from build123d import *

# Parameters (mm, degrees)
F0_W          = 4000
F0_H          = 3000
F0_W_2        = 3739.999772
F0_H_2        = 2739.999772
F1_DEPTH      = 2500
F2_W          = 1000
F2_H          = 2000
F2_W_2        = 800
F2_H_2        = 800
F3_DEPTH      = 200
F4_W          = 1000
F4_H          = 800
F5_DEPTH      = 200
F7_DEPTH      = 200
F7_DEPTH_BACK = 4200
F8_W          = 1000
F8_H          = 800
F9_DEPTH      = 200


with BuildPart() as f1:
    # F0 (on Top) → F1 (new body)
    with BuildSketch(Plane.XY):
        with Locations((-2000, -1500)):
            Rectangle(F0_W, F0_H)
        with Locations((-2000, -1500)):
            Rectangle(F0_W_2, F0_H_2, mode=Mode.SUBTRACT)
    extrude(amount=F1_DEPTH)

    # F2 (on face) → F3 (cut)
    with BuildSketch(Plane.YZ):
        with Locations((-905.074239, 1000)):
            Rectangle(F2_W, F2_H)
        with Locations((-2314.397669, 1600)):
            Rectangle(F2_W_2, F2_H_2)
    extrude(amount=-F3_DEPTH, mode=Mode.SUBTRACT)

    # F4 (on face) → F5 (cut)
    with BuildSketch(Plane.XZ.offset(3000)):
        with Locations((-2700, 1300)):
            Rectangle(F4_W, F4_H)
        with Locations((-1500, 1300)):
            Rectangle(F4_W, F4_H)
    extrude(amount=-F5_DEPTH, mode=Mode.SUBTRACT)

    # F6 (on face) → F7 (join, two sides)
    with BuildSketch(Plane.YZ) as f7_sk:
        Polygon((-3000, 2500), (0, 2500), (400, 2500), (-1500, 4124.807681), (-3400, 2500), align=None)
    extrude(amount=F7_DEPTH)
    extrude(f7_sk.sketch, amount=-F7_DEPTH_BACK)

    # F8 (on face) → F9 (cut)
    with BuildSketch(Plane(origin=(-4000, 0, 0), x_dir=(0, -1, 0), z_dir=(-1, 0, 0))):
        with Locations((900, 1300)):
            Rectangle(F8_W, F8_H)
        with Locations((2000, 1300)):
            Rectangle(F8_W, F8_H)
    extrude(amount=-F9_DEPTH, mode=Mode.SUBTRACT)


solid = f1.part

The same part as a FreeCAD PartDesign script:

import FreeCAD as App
import Part
import Sketcher

doc = App.newDocument("Part")
body = doc.addObject("PartDesign::Body", "Body")

sketch1 = body.newObject("Sketcher::SketchObject", "Sketch")
sketch1.AttachmentSupport = (doc.getObject("XY_Plane"), [""])
sketch1.MapMode = "FlatFace"
sketch1.addGeometry(Part.LineSegment(App.Vector(-4000, 0, 0), App.Vector(-4000, -3000, 0)), False)
sketch1.addGeometry(Part.LineSegment(App.Vector(-4000, -3000, 0), App.Vector(0, -3000, 0)), False)
sketch1.addGeometry(Part.LineSegment(App.Vector(0, -3000, 0), App.Vector(0, 0, 0)), False)
sketch1.addGeometry(Part.LineSegment(App.Vector(0, 0, 0), App.Vector(-4000, 0, 0)), False)
sketch1.addGeometry(Part.LineSegment(App.Vector(-130.000114, -2869.999886, 0), App.Vector(-3869.999886, -2869.999886, 0)), False)
sketch1.addGeometry(Part.LineSegment(App.Vector(-3869.999886, -2869.999886, 0), App.Vector(-3869.999886, -130.000114, 0)), False)
sketch1.addGeometry(Part.LineSegment(App.Vector(-3869.999886, -130.000114, 0), App.Vector(-130.000114, -130.000114, 0)), False)
sketch1.addGeometry(Part.LineSegment(App.Vector(-130.000114, -130.000114, 0), App.Vector(-130.000114, -2869.999886, 0)), False)
sketch1.addConstraint(Sketcher.Constraint("Coincident", 0, 2, 1, 1))
sketch1.addConstraint(Sketcher.Constraint("Coincident", 1, 2, 2, 1))
sketch1.addConstraint(Sketcher.Constraint("Coincident", 2, 2, 3, 1))
sketch1.addConstraint(Sketcher.Constraint("Coincident", 3, 2, 0, 1))
sketch1.addConstraint(Sketcher.Constraint("Coincident", 4, 2, 5, 1))
sketch1.addConstraint(Sketcher.Constraint("Coincident", 5, 2, 6, 1))
sketch1.addConstraint(Sketcher.Constraint("Coincident", 6, 2, 7, 1))
sketch1.addConstraint(Sketcher.Constraint("Coincident", 7, 2, 4, 1))
sketch1.addConstraint(Sketcher.Constraint("Vertical", 0))
sketch1.addConstraint(Sketcher.Constraint("Horizontal", 1))
sketch1.addConstraint(Sketcher.Constraint("Vertical", 2))
sketch1.addConstraint(Sketcher.Constraint("Horizontal", 3))
sketch1.addConstraint(Sketcher.Constraint("Horizontal", 4))
sketch1.addConstraint(Sketcher.Constraint("Vertical", 5))
sketch1.addConstraint(Sketcher.Constraint("Horizontal", 6))
sketch1.addConstraint(Sketcher.Constraint("Vertical", 7))
sketch1.addConstraint(Sketcher.Constraint("Coincident", 2, 2, -1, 1))
sketch1.addConstraint(Sketcher.Constraint("DistanceX", 1, 1, 1, 2, 4000.0))
sketch1.addConstraint(Sketcher.Constraint("DistanceY", 0, 2, 0, 1, 3000.0))
sketch1.addConstraint(Sketcher.Constraint("DistanceX", 4, 2, 4, 1, 3739.999772))
sketch1.addConstraint(Sketcher.Constraint("DistanceY", 5, 1, 5, 2, 2739.999772))
sketch1.addConstraint(Sketcher.Constraint("DistanceX", 4, 2, -1, 1, 3869.999886))
sketch1.addConstraint(Sketcher.Constraint("DistanceY", 4, 2, -1, 1, 2869.999886))
pad1 = body.newObject("PartDesign::Pad", "Pad")
pad1.Profile = sketch1
pad1.Length = 2500

sketch2 = body.newObject("Sketcher::SketchObject", "Sketch001")
sketch2.AttachmentSupport = (doc.getObject("YZ_Plane"), [""])
sketch2.MapMode = "FlatFace"
sketch2.addGeometry(Part.LineSegment(App.Vector(-1405, 2000, 0), App.Vector(-1405, 0, 0)), False)
sketch2.addGeometry(Part.LineSegment(App.Vector(-1405, 0, 0), App.Vector(-405, 0, 0)), False)
sketch2.addGeometry(Part.LineSegment(App.Vector(-405, 0, 0), App.Vector(-405, 2000, 0)), False)
sketch2.addGeometry(Part.LineSegment(App.Vector(-405, 2000, 0), App.Vector(-1405, 2000, 0)), False)
sketch2.addGeometry(Part.LineSegment(App.Vector(-2714, 2000, 0), App.Vector(-2714, 1200, 0)), False)
sketch2.addGeometry(Part.LineSegment(App.Vector(-2714, 1200, 0), App.Vector(-1914, 1200, 0)), False)
sketch2.addGeometry(Part.LineSegment(App.Vector(-1914, 1200, 0), App.Vector(-1914, 2000, 0)), False)
sketch2.addGeometry(Part.LineSegment(App.Vector(-1914, 2000, 0), App.Vector(-2714, 2000, 0)), False)
sketch2.addConstraint(Sketcher.Constraint("Coincident", 0, 2, 1, 1))
sketch2.addConstraint(Sketcher.Constraint("Coincident", 1, 2, 2, 1))
sketch2.addConstraint(Sketcher.Constraint("Coincident", 2, 2, 3, 1))
sketch2.addConstraint(Sketcher.Constraint("Coincident", 3, 2, 0, 1))
sketch2.addConstraint(Sketcher.Constraint("Coincident", 4, 2, 5, 1))
sketch2.addConstraint(Sketcher.Constraint("Coincident", 5, 2, 6, 1))
sketch2.addConstraint(Sketcher.Constraint("Coincident", 6, 2, 7, 1))
sketch2.addConstraint(Sketcher.Constraint("Coincident", 7, 2, 4, 1))
sketch2.addConstraint(Sketcher.Constraint("Vertical", 0))
sketch2.addConstraint(Sketcher.Constraint("Horizontal", 1))
sketch2.addConstraint(Sketcher.Constraint("Vertical", 2))
sketch2.addConstraint(Sketcher.Constraint("Horizontal", 3))
sketch2.addConstraint(Sketcher.Constraint("Vertical", 4))
sketch2.addConstraint(Sketcher.Constraint("Horizontal", 5))
sketch2.addConstraint(Sketcher.Constraint("Vertical", 6))
sketch2.addConstraint(Sketcher.Constraint("Horizontal", 7))
sketch2.addConstraint(Sketcher.Constraint("PointOnObject", 0, 2, -1))
sketch2.addConstraint(Sketcher.Constraint("Horizontal", 3, 2, 6, 2))
sketch2.addConstraint(Sketcher.Constraint("Equal", 7, 4))
sketch2.addConstraint(Sketcher.Constraint("DistanceX", 1, 1, 1, 2, 1000.0))
sketch2.addConstraint(Sketcher.Constraint("DistanceX", 5, 1, 5, 2, 800.0))
sketch2.addConstraint(Sketcher.Constraint("DistanceY", 0, 2, 0, 1, 2000.0))
sketch2.addConstraint(Sketcher.Constraint("DistanceX", 0, 2, -1, 1, 1405.074239))
sketch2.addConstraint(Sketcher.Constraint("DistanceX", 4, 2, -1, 1, 2714.397669))
pocket1 = body.newObject("PartDesign::Pocket", "Pocket")
pocket1.Profile = sketch2
pocket1.Length = 200

sketch3 = body.newObject("Sketcher::SketchObject", "Sketch002")
sketch3.AttachmentSupport = (doc.getObject("XZ_Plane"), [""])
sketch3.MapMode = "FlatFace"
sketch3.AttachmentOffset = App.Placement(App.Vector(0, 0, 3000), App.Rotation())
sketch3.addGeometry(Part.LineSegment(App.Vector(-3200, 1700, 0), App.Vector(-3200, 900, 0)), False)
sketch3.addGeometry(Part.LineSegment(App.Vector(-3200, 900, 0), App.Vector(-2200, 900, 0)), False)
sketch3.addGeometry(Part.LineSegment(App.Vector(-2200, 900, 0), App.Vector(-2200, 1700, 0)), False)
sketch3.addGeometry(Part.LineSegment(App.Vector(-2200, 1700, 0), App.Vector(-3200, 1700, 0)), False)
sketch3.addGeometry(Part.LineSegment(App.Vector(-2000, 1700, 0), App.Vector(-2000, 900, 0)), False)
sketch3.addGeometry(Part.LineSegment(App.Vector(-2000, 900, 0), App.Vector(-1000, 900, 0)), False)
sketch3.addGeometry(Part.LineSegment(App.Vector(-1000, 900, 0), App.Vector(-1000, 1700, 0)), False)
sketch3.addGeometry(Part.LineSegment(App.Vector(-1000, 1700, 0), App.Vector(-2000, 1700, 0)), False)
sketch3.addConstraint(Sketcher.Constraint("Coincident", 0, 2, 1, 1))
sketch3.addConstraint(Sketcher.Constraint("Coincident", 1, 2, 2, 1))
sketch3.addConstraint(Sketcher.Constraint("Coincident", 2, 2, 3, 1))
sketch3.addConstraint(Sketcher.Constraint("Coincident", 3, 2, 0, 1))
sketch3.addConstraint(Sketcher.Constraint("Coincident", 4, 2, 5, 1))
sketch3.addConstraint(Sketcher.Constraint("Coincident", 5, 2, 6, 1))
sketch3.addConstraint(Sketcher.Constraint("Coincident", 6, 2, 7, 1))
sketch3.addConstraint(Sketcher.Constraint("Coincident", 7, 2, 4, 1))
sketch3.addConstraint(Sketcher.Constraint("Vertical", 0))
sketch3.addConstraint(Sketcher.Constraint("Horizontal", 1))
sketch3.addConstraint(Sketcher.Constraint("Vertical", 2))
sketch3.addConstraint(Sketcher.Constraint("Horizontal", 3))
sketch3.addConstraint(Sketcher.Constraint("Vertical", 4))
sketch3.addConstraint(Sketcher.Constraint("Horizontal", 5))
sketch3.addConstraint(Sketcher.Constraint("Vertical", 6))
sketch3.addConstraint(Sketcher.Constraint("Horizontal", 7))
sketch3.addConstraint(Sketcher.Constraint("Horizontal", 1, 2, 4, 2))
sketch3.addConstraint(Sketcher.Constraint("Horizontal", 3, 2, 6, 2))
sketch3.addConstraint(Sketcher.Constraint("Equal", 3, 5))
sketch3.addConstraint(Sketcher.Constraint("DistanceX", 1, 1, 1, 2, 1000.0))
sketch3.addConstraint(Sketcher.Constraint("DistanceY", 0, 2, 0, 1, 800.0))
sketch3.addConstraint(Sketcher.Constraint("DistanceX", 0, 2, -1, 1, 3200.0))
sketch3.addConstraint(Sketcher.Constraint("DistanceY", -1, 1, 0, 2, 900.0))
sketch3.addConstraint(Sketcher.Constraint("DistanceX", 4, 2, -1, 1, 2000.0))
pocket2 = body.newObject("PartDesign::Pocket", "Pocket001")
pocket2.Profile = sketch3
pocket2.Length = 200

sketch4 = body.newObject("Sketcher::SketchObject", "Sketch003")
sketch4.AttachmentSupport = (doc.getObject("YZ_Plane"), [""])
sketch4.MapMode = "FlatFace"
sketch4.addGeometry(Part.LineSegment(App.Vector(400, 2500, 0), App.Vector(-1500, 4125, 0)), False)
sketch4.addGeometry(Part.LineSegment(App.Vector(-1500, 4125, 0), App.Vector(-3400, 2500, 0)), False)
sketch4.addGeometry(Part.LineSegment(App.Vector(-3400, 2500, 0), App.Vector(400, 2500, 0)), False)
sketch4.addConstraint(Sketcher.Constraint("Coincident", 0, 2, 1, 1))
sketch4.addConstraint(Sketcher.Constraint("Coincident", 1, 2, 2, 1))
sketch4.addConstraint(Sketcher.Constraint("Coincident", 2, 2, 0, 1))
sketch4.addConstraint(Sketcher.Constraint("Horizontal", 2))
sketch4.addConstraint(Sketcher.Constraint("Equal", 0, 1))
sketch4.addConstraint(Sketcher.Constraint("DistanceX", 2, 1, 2, 2, 3800.0))
sketch4.addConstraint(Sketcher.Constraint("Distance", 0, 2500.0))
sketch4.addConstraint(Sketcher.Constraint("DistanceX", 0, 2, -1, 1, 1500.0))
sketch4.addConstraint(Sketcher.Constraint("DistanceY", -1, 1, 1, 2, 2500.0))
pad2 = body.newObject("PartDesign::Pad", "Pad001")
pad2.Profile = sketch4
pad2.Type = "TwoLengths"
pad2.Length = 200
pad2.Length2 = 4200

sketch5 = body.newObject("Sketcher::SketchObject", "Sketch004")
sketch5.AttachmentSupport = (doc.getObject("YZ_Plane"), [""])
sketch5.MapMode = "FlatFace"
sketch5.AttachmentOffset = App.Placement(App.Vector(0, 0, -4000), App.Rotation())
sketch5.addGeometry(Part.LineSegment(App.Vector(-400, 1700, 0), App.Vector(-400, 900, 0)), False)
sketch5.addGeometry(Part.LineSegment(App.Vector(-400, 900, 0), App.Vector(-1400, 900, 0)), False)
sketch5.addGeometry(Part.LineSegment(App.Vector(-1400, 900, 0), App.Vector(-1400, 1700, 0)), False)
sketch5.addGeometry(Part.LineSegment(App.Vector(-1400, 1700, 0), App.Vector(-400, 1700, 0)), False)
sketch5.addGeometry(Part.LineSegment(App.Vector(-1500, 1700, 0), App.Vector(-1500, 900, 0)), False)
sketch5.addGeometry(Part.LineSegment(App.Vector(-1500, 900, 0), App.Vector(-2500, 900, 0)), False)
sketch5.addGeometry(Part.LineSegment(App.Vector(-2500, 900, 0), App.Vector(-2500, 1700, 0)), False)
sketch5.addGeometry(Part.LineSegment(App.Vector(-2500, 1700, 0), App.Vector(-1500, 1700, 0)), False)
sketch5.addConstraint(Sketcher.Constraint("Coincident", 0, 2, 1, 1))
sketch5.addConstraint(Sketcher.Constraint("Coincident", 1, 2, 2, 1))
sketch5.addConstraint(Sketcher.Constraint("Coincident", 2, 2, 3, 1))
sketch5.addConstraint(Sketcher.Constraint("Coincident", 3, 2, 0, 1))
sketch5.addConstraint(Sketcher.Constraint("Coincident", 4, 2, 5, 1))
sketch5.addConstraint(Sketcher.Constraint("Coincident", 5, 2, 6, 1))
sketch5.addConstraint(Sketcher.Constraint("Coincident", 6, 2, 7, 1))
sketch5.addConstraint(Sketcher.Constraint("Coincident", 7, 2, 4, 1))
sketch5.addConstraint(Sketcher.Constraint("Vertical", 0))
sketch5.addConstraint(Sketcher.Constraint("Horizontal", 1))
sketch5.addConstraint(Sketcher.Constraint("Vertical", 2))
sketch5.addConstraint(Sketcher.Constraint("Horizontal", 3))
sketch5.addConstraint(Sketcher.Constraint("Vertical", 4))
sketch5.addConstraint(Sketcher.Constraint("Horizontal", 5))
sketch5.addConstraint(Sketcher.Constraint("Vertical", 6))
sketch5.addConstraint(Sketcher.Constraint("Horizontal", 7))
sketch5.addConstraint(Sketcher.Constraint("Horizontal", 1, 2, 4, 2))
sketch5.addConstraint(Sketcher.Constraint("Horizontal", 3, 2, 6, 2))
sketch5.addConstraint(Sketcher.Constraint("Equal", 3, 5))
sketch5.addConstraint(Sketcher.Constraint("DistanceX", 1, 2, 1, 1, 1000.0))
sketch5.addConstraint(Sketcher.Constraint("DistanceY", 0, 2, 0, 1, 800.0))
sketch5.addConstraint(Sketcher.Constraint("DistanceX", 0, 2, -1, 1, 400.0))
sketch5.addConstraint(Sketcher.Constraint("DistanceY", -1, 1, 0, 2, 900.0))
sketch5.addConstraint(Sketcher.Constraint("DistanceX", 4, 2, -1, 1, 1500.0))
pocket3 = body.newObject("PartDesign::Pocket", "Pocket002")
pocket3.Profile = sketch5
pocket3.Length = 200
pocket3.Reversed = True

doc.recompute()
